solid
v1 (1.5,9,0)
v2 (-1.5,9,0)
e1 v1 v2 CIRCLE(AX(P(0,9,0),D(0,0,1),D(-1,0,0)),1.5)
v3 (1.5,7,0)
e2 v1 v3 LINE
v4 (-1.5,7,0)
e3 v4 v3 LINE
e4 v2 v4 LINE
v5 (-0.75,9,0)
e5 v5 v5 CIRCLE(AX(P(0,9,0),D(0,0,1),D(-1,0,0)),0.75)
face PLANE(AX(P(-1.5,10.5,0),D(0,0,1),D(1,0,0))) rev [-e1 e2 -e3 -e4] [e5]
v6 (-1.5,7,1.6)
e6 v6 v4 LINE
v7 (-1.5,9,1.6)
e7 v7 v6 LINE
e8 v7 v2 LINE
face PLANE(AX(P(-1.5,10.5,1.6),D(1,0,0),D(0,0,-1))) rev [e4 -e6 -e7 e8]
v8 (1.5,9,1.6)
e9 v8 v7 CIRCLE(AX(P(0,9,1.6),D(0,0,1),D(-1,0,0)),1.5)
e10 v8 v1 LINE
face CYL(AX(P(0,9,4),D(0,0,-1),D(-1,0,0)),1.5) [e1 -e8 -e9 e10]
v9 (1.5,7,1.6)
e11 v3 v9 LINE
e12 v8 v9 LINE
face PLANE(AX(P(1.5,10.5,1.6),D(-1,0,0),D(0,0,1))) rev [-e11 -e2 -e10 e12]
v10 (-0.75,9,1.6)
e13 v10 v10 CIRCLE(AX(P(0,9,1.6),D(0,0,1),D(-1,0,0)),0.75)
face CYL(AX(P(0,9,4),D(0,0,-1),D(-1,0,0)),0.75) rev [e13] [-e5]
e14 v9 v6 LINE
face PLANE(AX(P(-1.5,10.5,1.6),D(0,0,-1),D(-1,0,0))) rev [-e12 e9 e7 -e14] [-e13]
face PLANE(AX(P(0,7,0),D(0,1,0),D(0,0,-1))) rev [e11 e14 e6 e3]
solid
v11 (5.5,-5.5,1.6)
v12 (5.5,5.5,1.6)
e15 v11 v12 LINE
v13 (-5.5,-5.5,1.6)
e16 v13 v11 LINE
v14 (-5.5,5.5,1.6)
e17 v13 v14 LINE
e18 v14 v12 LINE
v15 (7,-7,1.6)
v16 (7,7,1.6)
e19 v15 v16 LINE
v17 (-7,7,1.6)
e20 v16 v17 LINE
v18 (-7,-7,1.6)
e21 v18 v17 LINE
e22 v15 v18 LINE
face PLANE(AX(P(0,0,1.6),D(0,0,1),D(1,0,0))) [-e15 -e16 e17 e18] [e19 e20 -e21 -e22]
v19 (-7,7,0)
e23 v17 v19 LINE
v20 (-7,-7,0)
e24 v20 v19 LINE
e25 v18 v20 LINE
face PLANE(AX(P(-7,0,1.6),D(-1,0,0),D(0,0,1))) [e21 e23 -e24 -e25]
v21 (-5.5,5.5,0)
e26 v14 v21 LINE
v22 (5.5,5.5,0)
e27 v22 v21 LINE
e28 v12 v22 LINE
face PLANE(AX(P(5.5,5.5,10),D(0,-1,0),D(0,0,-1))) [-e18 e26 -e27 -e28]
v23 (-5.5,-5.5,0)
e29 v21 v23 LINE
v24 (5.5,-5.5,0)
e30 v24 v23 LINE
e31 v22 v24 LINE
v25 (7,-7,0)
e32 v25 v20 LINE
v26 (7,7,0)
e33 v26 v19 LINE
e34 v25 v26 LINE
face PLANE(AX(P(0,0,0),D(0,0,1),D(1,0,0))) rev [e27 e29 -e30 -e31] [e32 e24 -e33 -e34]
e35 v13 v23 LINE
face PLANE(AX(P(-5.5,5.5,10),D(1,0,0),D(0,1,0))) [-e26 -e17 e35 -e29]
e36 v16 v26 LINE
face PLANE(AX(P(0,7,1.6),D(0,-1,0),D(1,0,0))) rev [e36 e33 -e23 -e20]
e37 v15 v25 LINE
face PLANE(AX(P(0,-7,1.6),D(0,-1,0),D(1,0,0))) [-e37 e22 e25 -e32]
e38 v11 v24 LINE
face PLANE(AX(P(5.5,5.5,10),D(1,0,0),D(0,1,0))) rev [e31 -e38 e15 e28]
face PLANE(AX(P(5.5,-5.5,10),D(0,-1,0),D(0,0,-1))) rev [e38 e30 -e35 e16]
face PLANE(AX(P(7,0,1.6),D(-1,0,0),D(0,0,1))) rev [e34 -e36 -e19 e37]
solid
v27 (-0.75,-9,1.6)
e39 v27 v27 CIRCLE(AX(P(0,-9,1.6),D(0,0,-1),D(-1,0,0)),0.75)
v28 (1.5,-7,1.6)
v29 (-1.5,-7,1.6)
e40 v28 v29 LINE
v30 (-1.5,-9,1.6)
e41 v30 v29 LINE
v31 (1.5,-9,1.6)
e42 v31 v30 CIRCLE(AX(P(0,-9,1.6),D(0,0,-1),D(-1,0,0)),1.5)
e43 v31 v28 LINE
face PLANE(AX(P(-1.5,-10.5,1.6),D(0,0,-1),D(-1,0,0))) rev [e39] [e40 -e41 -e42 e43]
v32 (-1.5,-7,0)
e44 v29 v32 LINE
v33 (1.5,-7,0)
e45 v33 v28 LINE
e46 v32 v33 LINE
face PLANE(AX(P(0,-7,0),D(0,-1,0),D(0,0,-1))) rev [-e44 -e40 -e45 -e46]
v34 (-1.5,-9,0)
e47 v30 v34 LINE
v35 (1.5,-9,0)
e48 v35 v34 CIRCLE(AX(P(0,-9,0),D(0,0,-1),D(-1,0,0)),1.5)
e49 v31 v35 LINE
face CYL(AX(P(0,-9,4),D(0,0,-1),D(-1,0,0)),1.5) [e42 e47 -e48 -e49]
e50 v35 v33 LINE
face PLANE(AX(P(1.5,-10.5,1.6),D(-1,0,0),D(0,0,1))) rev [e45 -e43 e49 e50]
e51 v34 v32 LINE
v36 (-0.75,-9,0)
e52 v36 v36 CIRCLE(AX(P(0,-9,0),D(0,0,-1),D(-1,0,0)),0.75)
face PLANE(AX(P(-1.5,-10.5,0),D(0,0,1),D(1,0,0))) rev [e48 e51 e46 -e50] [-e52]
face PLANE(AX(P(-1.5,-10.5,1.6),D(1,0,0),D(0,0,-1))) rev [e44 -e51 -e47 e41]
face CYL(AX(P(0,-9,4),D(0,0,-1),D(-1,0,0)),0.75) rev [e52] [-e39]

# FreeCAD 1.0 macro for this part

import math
import FreeCAD as App
import Part
import Sketcher

V = App.Vector
Q = App.Units.Quantity


def add_polygon(sketch, points):
    """Adds a closed chain of lines whose ends are joined by coincident constraints."""
    first, n = sketch.GeometryCount, len(points)
    for a, b in zip(points, points[1:] + points[:1]):
        sketch.addGeometry(Part.LineSegment(App.Vector(*a, 0), App.Vector(*b, 0)), False)
    for i in range(n):
        sketch.addConstraint(Sketcher.Constraint("Coincident", first + i, 2, first + (i + 1) % n, 1))

doc = App.newDocument("Part")
body = doc.addObject("PartDesign::Body", "Body")

# Sketch on XY plane
sketch1 = body.newObject("Sketcher::SketchObject", "Sketch")
sketch1.AttachmentSupport = (doc.getObject("XY_Plane"), [""])
sketch1.MapMode = "FlatFace"
add_polygon(sketch1, [(-7, 7), (-7, -7), (7, -7), (7, 7)])  # lines 0-3
sketch1.addConstraint(Sketcher.Constraint("Vertical", 0))
sketch1.addConstraint(Sketcher.Constraint("Horizontal", 1))
sketch1.addConstraint(Sketcher.Constraint("Vertical", 2))
sketch1.addConstraint(Sketcher.Constraint("Horizontal", 3))
sketch1.addConstraint(Sketcher.Constraint("Symmetric", 0, 2, 2, 2, -1, 1))
sketch1.addConstraint(Sketcher.Constraint("Equal", 3, 0))
sketch1.addConstraint(Sketcher.Constraint("DistanceX", 1, 1, 1, 2, Q("14 mm")))
pad1 = body.newObject("PartDesign::Pad", "Pad")
pad1.Profile = sketch1
pad1.Length = 1.6

# Sketch on XY plane
sketch2 = body.newObject("Sketcher::SketchObject", "Sketch001")
sketch2.AttachmentSupport = (doc.getObject("XY_Plane"), [""])
sketch2.MapMode = "FlatFace"
add_polygon(sketch2, [(6, 6), (6, -6), (-6, -6), (-6, 6)])  # lines 0-3
sketch2.addConstraint(Sketcher.Constraint("Vertical", 0))
sketch2.addConstraint(Sketcher.Constraint("Horizontal", 1))
sketch2.addConstraint(Sketcher.Constraint("Vertical", 2))
sketch2.addConstraint(Sketcher.Constraint("Horizontal", 3))
sketch2.addConstraint(Sketcher.Constraint("Symmetric", 0, 2, 2, 2, -1, 1))
sketch2.addConstraint(Sketcher.Constraint("Equal", 3, 0))
sketch2.addConstraint(Sketcher.Constraint("DistanceX", 1, 2, 1, 1, Q("11 mm")))
pocket1 = body.newObject("PartDesign::Pocket", "Pocket")
pocket1.Profile = sketch2
pocket1.Length = 10
pocket1.Reversed = True
body2 = doc.addObject("PartDesign::Body", "Body001")

# Sketch on XZ plane
sketch3 = body2.newObject("Sketcher::SketchObject", "Sketch002")
sketch3.AttachmentSupport = (doc.getObject("XZ_Plane001"), [""])
sketch3.MapMode = "FlatFace"
sketch3.AttachmentOffset = App.Placement(V(0, 0, 7), App.Rotation())
add_polygon(sketch3, [(-1.5, 1.6), (-1.5, 0), (1.5, 0), (1.5, 1.6)])  # lines 0-3
sketch3.addConstraint(Sketcher.Constraint("Vertical", 0))
sketch3.addConstraint(Sketcher.Constraint("Horizontal", 1))
sketch3.addConstraint(Sketcher.Constraint("Vertical", 2))
sketch3.addConstraint(Sketcher.Constraint("Horizontal", 3))
sketch3.addConstraint(Sketcher.Constraint("Symmetric", 0, 2, 1, 2, -1, 1))
sketch3.addConstraint(Sketcher.Constraint("DistanceX", 1, 1, 1, 2, Q("3 mm")))
sketch3.addConstraint(Sketcher.Constraint("DistanceY", 0, 2, 0, 1, Q("1.6 mm")))
pad2 = body2.newObject("PartDesign::Pad", "Pad001")
pad2.Profile = sketch3
pad2.Length = 3.5

# Sketch on XY plane
sketch4 = body2.newObject("Sketcher::SketchObject", "Sketch003")
sketch4.AttachmentSupport = (doc.getObject("XY_Plane001"), [""])
sketch4.MapMode = "FlatFace"
sketch4.addGeometry(Part.LineSegment(V(-1.5, -10.5, 0), V(-1.5, -9, 0)), False)
sketch4.addGeometry(Part.ArcOfCircle(Part.Circle(V(0, -9, 0), V(0, 0, 1), 1.5), math.radians(180), math.radians(270)), False)
sketch4.addGeometry(Part.LineSegment(V(0, -10.5, 0), V(-1.5, -10.5, 0)), False)
sketch4.addGeometry(Part.ArcOfCircle(Part.Circle(V(0, -9, 0), V(0, 0, 1), 1.5), math.radians(-90), math.radians(0)), False)
sketch4.addGeometry(Part.LineSegment(V(1.5, -9, 0), V(1.5, -10.5, 0)), False)
sketch4.addGeometry(Part.LineSegment(V(1.5, -10.5, 0), V(0, -10.5, 0)), False)
sketch4.addConstraint(Sketcher.Constraint("Tangent", 0, 2, 1, 1))
sketch4.addConstraint(Sketcher.Constraint("Tangent", 1, 2, 2, 1))
sketch4.addConstraint(Sketcher.Constraint("Coincident", 2, 2, 0, 1))
sketch4.addConstraint(Sketcher.Constraint("Tangent", 3, 2, 4, 1))
sketch4.addConstraint(Sketcher.Constraint("Coincident", 4, 2, 5, 1))
sketch4.addConstraint(Sketcher.Constraint("Tangent", 5, 2, 3, 1))
sketch4.addConstraint(Sketcher.Constraint("Vertical", 0))
sketch4.addConstraint(Sketcher.Constraint("Horizontal", 2))
sketch4.addConstraint(Sketcher.Constraint("Vertical", 4))
sketch4.addConstraint(Sketcher.Constraint("Horizontal", 5))
sketch4.addConstraint(Sketcher.Constraint("Coincident", 3, 3, 1, 3))
sketch4.addConstraint(Sketcher.Constraint("Equal", 1, 3))
sketch4.addConstraint(Sketcher.Constraint("PointOnObject", 1, 3, -2))
sketch4.addConstraint(Sketcher.Constraint("Radius", 1, Q("1.5 mm")))
sketch4.addConstraint(Sketcher.Constraint("DistanceY", 1, 3, -1, 1, Q("9 mm")))
pocket2 = body2.newObject("PartDesign::Pocket", "Pocket001")
pocket2.Profile = sketch4
pocket2.Length = 4
pocket2.Reversed = True

# Sketch on XY plane
sketch5 = body2.newObject("Sketcher::SketchObject", "Sketch004")
sketch5.AttachmentSupport = (doc.getObject("XY_Plane001"), [""])
sketch5.MapMode = "FlatFace"
sketch5.addGeometry(Part.Circle(V(0, -9, 0), V(0, 0, 1), 0.8), False)
sketch5.addConstraint(Sketcher.Constraint("PointOnObject", 0, 3, -2))
sketch5.addConstraint(Sketcher.Constraint("Diameter", 0, Q("1.5 mm")))
sketch5.addConstraint(Sketcher.Constraint("DistanceY", 0, 3, -1, 1, Q("9 mm")))
pocket3 = body2.newObject("PartDesign::Pocket", "Pocket002")
pocket3.Profile = sketch5
pocket3.Length = 4
pocket3.Reversed = True
body3 = doc.addObject("PartDesign::Body", "Body002")
doc.recompute()

mirroring = doc.addObject("Part::Mirroring", "Mirroring")
mirroring.Source = body2
mirroring.Base = V(0, 0, 0)
mirroring.Normal = V(0, 1, 0)
body3.BaseFeature = mirroring
doc.recompute()
mirroring.Visibility = False

doc.recompute()
